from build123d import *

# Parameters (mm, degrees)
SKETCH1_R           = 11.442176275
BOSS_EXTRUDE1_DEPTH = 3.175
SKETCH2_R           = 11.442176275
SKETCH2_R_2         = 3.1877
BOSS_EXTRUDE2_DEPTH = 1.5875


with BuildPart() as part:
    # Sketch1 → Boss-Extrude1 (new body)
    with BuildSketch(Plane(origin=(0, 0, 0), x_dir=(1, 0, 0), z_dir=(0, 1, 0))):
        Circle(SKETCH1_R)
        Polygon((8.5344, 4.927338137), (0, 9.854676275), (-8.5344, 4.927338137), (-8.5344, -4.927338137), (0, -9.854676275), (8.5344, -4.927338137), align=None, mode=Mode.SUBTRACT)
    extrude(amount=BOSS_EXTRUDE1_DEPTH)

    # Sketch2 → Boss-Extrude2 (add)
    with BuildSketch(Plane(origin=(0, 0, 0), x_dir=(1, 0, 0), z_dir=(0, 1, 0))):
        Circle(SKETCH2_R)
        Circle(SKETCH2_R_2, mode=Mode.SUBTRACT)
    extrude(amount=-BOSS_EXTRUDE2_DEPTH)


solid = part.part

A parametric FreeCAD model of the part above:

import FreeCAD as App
import Part
import Sketcher
Q = App.Units.Quantity


def add_polygon(sketch, points):
    """Adds a closed chain of lines whose ends are joined by coincident constraints."""
    first, n = sketch.GeometryCount, len(points)
    for a, b in zip(points, points[1:] + points[:1]):
        sketch.addGeometry(Part.LineSegment(App.Vector(*a, 0), App.Vector(*b, 0)), False)
    for i in range(n):
        sketch.addConstraint(Sketcher.Constraint("Coincident", first + i, 2, first + (i + 1) % n, 1))

doc = App.newDocument("Part")
params = doc.addObject("Spreadsheet::Sheet", "Params")
for row, (alias, value) in enumerate([
    ("pad1_length", "0.125 in"),
    ("sketch2_diameter", "0.251 in"),
    ("pad2_length", "0.0625 in"),
], start=1):
    params.set(f"A{row}", alias)
    params.set(f"B{row}", "=" + value)
    params.setAlias(f"B{row}", alias)

body = doc.addObject("PartDesign::Body", "Body")

# Sketch on XZ plane
sketch1 = body.newObject("Sketcher::SketchObject", "Sketch")
sketch1.AttachmentSupport = (doc.getObject("XZ_Plane"), [""])
sketch1.MapMode = "FlatFace"
sketch1.addGeometry(Part.Circle(App.Vector(0, 0, 0), App.Vector(0, 0, 1), 11), False)  # 0
add_polygon(sketch1, [(0, -10), (9, -5), (9, 5), (0, 10), (-9, 5), (-9, -5)])  # lines 1-6
sketch1.addConstraint(Sketcher.Constraint("Vertical", 2))
sketch1.addConstraint(Sketcher.Constraint("Vertical", 5))
sketch1.addConstraint(Sketcher.Constraint("Coincident", 0, 3, -1, 1))
sketch1.addConstraint(Sketcher.Constraint("Symmetric", 1, 2, 4, 2, -1, 1))
sketch1.addConstraint(Sketcher.Constraint("Symmetric", 3, 2, 6, 2, -1, 1))
sketch1.addConstraint(Sketcher.Constraint("PointOnObject", 3, 2, -2))
sketch1.addConstraint(Sketcher.Constraint("Parallel", 3, 6))
sketch1.addConstraint(Sketcher.Constraint("Horizontal", 2, 2, 4, 2))
sketch1.addConstraint(Sketcher.Constraint("Angle", 1, Q("30 deg")))
sketch1.addConstraint(Sketcher.Constraint("DistanceX", -1, 1, 1, 2, Q("0.336 in")))
sketch1.addConstraint(Sketcher.Constraint("Diameter", 0, Q("22.884353 mm")))
sketch1.addConstraint(Sketcher.Constraint("DistanceY", 2, 1, 2, 2, Q("9.854676 mm")))
pad1 = body.newObject("PartDesign::Pad", "Pad")
pad1.Profile = sketch1
pad1.setExpression("Length", "Params.pad1_length")
pad1.Reversed = True

# Sketch on XZ plane
sketch2 = body.newObject("Sketcher::SketchObject", "Sketch001")
sketch2.AttachmentSupport = (doc.getObject("XZ_Plane"), [""])
sketch2.MapMode = "FlatFace"
sketch2.addGeometry(Part.Circle(App.Vector(0, 0, 0), App.Vector(0, 0, 1), 11.4), False)
sketch2.addGeometry(Part.Circle(App.Vector(0, 0, 0), App.Vector(0, 0, 1), 3.2), False)
sketch2.addConstraint(Sketcher.Constraint("Coincident", 0, 3, -1, 1))
sketch2.addConstraint(Sketcher.Constraint("Coincident", 1, 3, -1, 1))
sketch2.addConstraint(Sketcher.Constraint("Diameter", 1, Q("0.251 in")))
sketch2.addConstraint(Sketcher.Constraint("Diameter", 0, Q("22.884353 mm")))
sketch2.setExpression("Constraints[2]", "Params.sketch2_diameter")
pad2 = body.newObject("PartDesign::Pad", "Pad001")
pad2.Profile = sketch2
pad2.setExpression("Length", "Params.pad2_length")

doc.recompute()
